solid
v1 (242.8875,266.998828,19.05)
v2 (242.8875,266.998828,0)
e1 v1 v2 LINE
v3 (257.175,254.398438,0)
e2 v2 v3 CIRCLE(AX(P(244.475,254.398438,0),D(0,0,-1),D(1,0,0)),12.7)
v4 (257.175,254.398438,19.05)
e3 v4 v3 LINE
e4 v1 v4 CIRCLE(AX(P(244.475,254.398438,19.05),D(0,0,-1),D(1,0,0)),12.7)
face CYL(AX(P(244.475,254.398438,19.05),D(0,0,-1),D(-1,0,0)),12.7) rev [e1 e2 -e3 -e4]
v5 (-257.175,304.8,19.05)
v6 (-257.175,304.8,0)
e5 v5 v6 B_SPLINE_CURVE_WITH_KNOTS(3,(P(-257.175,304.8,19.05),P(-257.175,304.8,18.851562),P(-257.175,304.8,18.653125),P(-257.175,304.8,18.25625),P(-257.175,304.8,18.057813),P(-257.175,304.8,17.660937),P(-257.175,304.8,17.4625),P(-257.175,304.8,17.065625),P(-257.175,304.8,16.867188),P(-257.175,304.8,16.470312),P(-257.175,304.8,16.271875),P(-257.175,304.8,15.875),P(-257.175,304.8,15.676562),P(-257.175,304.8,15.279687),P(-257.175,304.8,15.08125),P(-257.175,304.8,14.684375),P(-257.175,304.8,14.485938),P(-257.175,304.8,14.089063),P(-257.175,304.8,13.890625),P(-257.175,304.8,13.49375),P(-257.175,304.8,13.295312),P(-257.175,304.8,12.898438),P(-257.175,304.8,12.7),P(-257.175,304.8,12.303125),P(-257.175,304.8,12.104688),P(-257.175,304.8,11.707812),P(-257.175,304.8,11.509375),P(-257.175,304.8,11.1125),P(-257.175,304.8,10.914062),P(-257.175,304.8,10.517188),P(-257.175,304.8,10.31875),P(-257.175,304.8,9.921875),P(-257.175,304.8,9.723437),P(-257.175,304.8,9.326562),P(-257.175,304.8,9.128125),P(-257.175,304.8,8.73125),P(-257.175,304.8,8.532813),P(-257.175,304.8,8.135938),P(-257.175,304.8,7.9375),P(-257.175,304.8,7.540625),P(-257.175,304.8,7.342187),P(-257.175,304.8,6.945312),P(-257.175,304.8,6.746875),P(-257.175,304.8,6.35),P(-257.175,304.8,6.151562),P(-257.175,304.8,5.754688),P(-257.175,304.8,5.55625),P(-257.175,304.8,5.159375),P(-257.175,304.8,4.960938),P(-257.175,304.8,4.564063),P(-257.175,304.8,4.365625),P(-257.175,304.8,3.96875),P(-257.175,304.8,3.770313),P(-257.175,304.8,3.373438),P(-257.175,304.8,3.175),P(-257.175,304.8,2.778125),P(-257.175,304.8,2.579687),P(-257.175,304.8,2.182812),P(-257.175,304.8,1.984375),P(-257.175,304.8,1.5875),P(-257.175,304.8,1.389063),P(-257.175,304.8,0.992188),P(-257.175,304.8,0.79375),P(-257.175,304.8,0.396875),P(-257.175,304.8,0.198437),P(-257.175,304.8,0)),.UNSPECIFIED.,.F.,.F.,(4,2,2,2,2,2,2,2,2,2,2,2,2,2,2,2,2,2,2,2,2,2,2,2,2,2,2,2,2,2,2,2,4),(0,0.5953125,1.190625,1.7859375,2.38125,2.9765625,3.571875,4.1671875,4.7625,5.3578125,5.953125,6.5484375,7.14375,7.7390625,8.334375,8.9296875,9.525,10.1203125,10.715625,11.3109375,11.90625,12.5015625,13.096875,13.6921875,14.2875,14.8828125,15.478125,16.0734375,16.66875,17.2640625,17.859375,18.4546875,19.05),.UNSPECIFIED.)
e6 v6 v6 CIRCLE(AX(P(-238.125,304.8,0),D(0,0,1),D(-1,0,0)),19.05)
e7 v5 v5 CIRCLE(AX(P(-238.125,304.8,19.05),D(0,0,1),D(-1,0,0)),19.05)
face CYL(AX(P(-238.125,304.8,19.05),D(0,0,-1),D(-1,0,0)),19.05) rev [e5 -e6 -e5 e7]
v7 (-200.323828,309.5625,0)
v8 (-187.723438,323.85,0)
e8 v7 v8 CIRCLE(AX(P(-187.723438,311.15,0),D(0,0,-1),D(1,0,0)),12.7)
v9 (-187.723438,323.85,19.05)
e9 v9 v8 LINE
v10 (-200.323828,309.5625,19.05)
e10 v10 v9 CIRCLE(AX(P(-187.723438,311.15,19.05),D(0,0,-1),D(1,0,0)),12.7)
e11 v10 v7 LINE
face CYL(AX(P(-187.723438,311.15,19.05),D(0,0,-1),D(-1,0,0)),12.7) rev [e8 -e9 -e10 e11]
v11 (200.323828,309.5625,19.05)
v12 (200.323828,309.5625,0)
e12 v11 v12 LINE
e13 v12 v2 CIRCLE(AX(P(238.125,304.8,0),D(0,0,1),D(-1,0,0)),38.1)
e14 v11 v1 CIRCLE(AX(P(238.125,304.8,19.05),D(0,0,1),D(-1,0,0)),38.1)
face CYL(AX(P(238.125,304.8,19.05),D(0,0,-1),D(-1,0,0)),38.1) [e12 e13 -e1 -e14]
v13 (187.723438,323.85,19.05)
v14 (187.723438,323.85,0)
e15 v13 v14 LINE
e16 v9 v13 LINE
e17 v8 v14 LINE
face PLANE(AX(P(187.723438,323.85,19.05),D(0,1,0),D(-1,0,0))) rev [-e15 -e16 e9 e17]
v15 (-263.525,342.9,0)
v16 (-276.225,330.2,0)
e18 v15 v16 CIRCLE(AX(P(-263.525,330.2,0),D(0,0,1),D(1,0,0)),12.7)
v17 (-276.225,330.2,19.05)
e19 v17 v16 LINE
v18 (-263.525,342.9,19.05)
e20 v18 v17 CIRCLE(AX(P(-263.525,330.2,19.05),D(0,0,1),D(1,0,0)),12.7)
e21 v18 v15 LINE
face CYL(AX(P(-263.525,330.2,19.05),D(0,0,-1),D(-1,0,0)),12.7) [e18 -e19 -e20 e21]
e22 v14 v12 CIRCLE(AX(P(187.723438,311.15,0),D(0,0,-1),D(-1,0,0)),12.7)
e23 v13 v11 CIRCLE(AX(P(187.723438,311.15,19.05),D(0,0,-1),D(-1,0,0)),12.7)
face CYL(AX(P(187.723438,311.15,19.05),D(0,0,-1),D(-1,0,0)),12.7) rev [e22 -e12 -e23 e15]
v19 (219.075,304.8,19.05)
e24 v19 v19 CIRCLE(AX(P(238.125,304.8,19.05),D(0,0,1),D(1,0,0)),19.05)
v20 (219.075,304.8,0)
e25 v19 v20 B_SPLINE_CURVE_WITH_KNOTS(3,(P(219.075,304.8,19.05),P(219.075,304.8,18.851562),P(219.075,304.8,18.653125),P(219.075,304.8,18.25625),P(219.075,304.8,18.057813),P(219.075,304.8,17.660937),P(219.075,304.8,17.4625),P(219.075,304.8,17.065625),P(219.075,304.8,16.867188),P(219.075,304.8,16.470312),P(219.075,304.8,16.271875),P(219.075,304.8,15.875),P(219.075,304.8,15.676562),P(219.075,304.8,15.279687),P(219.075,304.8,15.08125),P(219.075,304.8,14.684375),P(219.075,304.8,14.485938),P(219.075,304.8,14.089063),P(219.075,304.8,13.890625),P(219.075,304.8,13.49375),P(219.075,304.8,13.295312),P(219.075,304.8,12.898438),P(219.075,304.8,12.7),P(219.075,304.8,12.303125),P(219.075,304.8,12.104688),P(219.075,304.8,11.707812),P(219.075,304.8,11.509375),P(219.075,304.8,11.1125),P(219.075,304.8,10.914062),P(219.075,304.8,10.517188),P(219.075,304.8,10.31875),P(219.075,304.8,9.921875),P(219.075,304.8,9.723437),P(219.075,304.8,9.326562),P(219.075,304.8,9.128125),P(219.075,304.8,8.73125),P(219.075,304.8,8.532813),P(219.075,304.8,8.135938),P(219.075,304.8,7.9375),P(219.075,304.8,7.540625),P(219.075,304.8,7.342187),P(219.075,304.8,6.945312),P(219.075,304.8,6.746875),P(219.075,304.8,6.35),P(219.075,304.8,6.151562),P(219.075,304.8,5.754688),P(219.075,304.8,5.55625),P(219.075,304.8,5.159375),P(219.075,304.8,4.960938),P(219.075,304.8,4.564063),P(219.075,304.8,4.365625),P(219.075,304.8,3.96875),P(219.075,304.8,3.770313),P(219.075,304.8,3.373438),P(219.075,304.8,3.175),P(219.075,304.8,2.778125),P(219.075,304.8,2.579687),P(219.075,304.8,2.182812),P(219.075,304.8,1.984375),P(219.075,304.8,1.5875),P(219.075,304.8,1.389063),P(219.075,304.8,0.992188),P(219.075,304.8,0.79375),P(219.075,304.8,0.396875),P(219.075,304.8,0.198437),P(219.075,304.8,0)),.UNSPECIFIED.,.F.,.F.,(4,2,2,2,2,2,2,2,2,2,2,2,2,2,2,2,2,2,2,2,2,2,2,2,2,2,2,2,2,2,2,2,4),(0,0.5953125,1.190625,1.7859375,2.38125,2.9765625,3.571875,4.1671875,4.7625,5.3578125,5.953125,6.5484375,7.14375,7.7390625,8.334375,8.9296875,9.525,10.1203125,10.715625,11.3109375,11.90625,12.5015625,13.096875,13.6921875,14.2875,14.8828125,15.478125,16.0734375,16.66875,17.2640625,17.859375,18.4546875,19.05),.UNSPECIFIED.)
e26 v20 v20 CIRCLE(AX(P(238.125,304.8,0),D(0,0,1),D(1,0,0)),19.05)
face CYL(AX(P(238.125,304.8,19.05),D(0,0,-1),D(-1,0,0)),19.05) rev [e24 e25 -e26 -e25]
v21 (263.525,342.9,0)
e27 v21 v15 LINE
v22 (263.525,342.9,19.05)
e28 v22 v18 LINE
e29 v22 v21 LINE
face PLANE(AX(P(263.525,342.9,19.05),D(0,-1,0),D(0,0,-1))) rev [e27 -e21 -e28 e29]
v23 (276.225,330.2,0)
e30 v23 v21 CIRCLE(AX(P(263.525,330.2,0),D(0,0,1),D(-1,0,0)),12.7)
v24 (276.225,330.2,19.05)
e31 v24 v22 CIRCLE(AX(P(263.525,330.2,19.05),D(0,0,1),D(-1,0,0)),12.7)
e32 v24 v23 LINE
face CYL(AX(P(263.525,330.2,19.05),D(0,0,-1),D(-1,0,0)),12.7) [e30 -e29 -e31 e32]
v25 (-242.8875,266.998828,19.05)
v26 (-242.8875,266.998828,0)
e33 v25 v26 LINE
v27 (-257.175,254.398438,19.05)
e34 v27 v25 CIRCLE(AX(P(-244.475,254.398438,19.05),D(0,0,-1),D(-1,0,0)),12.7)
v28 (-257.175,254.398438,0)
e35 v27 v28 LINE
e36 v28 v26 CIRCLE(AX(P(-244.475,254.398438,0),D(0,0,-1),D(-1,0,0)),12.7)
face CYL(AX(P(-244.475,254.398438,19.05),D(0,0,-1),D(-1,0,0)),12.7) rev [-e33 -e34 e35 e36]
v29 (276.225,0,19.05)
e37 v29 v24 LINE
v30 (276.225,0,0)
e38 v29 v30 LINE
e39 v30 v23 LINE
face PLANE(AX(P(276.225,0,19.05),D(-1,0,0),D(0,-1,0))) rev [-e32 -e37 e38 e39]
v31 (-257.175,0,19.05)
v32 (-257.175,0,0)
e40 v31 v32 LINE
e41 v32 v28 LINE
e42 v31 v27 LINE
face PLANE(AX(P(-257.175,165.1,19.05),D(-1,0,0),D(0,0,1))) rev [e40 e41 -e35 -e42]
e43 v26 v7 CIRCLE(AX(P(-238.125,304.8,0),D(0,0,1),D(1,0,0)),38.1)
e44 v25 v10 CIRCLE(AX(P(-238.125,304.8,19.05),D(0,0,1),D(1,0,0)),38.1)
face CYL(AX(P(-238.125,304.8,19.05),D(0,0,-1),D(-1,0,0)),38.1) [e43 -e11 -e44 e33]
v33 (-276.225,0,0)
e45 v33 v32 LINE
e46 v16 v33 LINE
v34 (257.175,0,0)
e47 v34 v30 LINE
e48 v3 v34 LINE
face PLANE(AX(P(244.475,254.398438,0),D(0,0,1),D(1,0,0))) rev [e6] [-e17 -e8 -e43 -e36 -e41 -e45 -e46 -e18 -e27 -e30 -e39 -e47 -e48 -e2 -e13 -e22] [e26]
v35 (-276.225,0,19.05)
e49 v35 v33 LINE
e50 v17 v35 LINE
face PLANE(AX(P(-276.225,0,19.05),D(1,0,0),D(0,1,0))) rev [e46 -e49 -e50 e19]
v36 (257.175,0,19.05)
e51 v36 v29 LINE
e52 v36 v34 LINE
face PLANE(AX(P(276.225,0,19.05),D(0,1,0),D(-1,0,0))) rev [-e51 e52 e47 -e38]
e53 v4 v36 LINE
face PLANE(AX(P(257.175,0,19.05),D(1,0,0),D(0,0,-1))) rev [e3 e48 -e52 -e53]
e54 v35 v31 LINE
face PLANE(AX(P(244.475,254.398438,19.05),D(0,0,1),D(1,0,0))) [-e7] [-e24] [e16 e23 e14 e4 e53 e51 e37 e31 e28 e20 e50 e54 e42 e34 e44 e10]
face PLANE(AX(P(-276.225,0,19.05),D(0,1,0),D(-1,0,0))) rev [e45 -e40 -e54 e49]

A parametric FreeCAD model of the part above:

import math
import FreeCAD as App
import Part
import Sketcher
Q = App.Units.Quantity

doc = App.newDocument("Part")
body = doc.addObject("PartDesign::Body", "Body")

# Sketch on XY plane
sketch1 = body.newObject("Sketcher::SketchObject", "Sketch")
sketch1.AttachmentSupport = (doc.getObject("XY_Plane"), [""])
sketch1.MapMode = "FlatFace"
sketch1.addGeometry(Part.LineSegment(App.Vector(276, 0, 0), App.Vector(276, 330, 0)), False)
sketch1.addGeometry(Part.ArcOfCircle(Part.Circle(App.Vector(264, 330, 0), App.Vector(0, 0, 1), 13), math.radians(0), math.radians(90)), False)
sketch1.addGeometry(Part.LineSegment(App.Vector(264, 343, 0), App.Vector(-264, 343, 0)), False)
sketch1.addGeometry(Part.ArcOfCircle(Part.Circle(App.Vector(-264, 330, 0), App.Vector(0, 0, 1), 13), math.radians(90), math.radians(180)), False)
sketch1.addGeometry(Part.LineSegment(App.Vector(-276, 330, 0), App.Vector(-276, 0, 0)), False)
sketch1.addGeometry(Part.LineSegment(App.Vector(-276, 0, 0), App.Vector(-257, 0, 0)), False)
sketch1.addGeometry(Part.LineSegment(App.Vector(-257, 0, 0), App.Vector(-257, 254, 0)), False)
sketch1.addGeometry(Part.ArcOfCircle(Part.Circle(App.Vector(-244, 254, 0), App.Vector(0, 0, 1), 13), math.radians(83), math.radians(180)), False)
sketch1.addGeometry(Part.ArcOfCircle(Part.Circle(App.Vector(-238, 305, 0), App.Vector(0, 0, 1), 38), math.radians(-97), math.radians(7)), False)
sketch1.addGeometry(Part.ArcOfCircle(Part.Circle(App.Vector(-188, 311, 0), App.Vector(0, 0, 1), 13), math.radians(90), math.radians(187)), False)
sketch1.addGeometry(Part.LineSegment(App.Vector(-188, 324, 0), App.Vector(188, 324, 0)), False)
sketch1.addGeometry(Part.ArcOfCircle(Part.Circle(App.Vector(188, 311, 0), App.Vector(0, 0, 1), 13), math.radians(-7), math.radians(90)), False)
sketch1.addGeometry(Part.ArcOfCircle(Part.Circle(App.Vector(238, 305, 0), App.Vector(0, 0, 1), 38), math.radians(173), math.radians(277)), False)
sketch1.addGeometry(Part.ArcOfCircle(Part.Circle(App.Vector(244, 254, 0), App.Vector(0, 0, 1), 13), math.radians(0), math.radians(97)), False)
sketch1.addGeometry(Part.LineSegment(App.Vector(257, 254, 0), App.Vector(257, 0, 0)), False)
sketch1.addGeometry(Part.LineSegment(App.Vector(257, 0, 0), App.Vector(276, 0, 0)), False)
sketch1.addGeometry(Part.Circle(App.Vector(-238, 305, 0), App.Vector(0, 0, 1), 19), False)
sketch1.addGeometry(Part.Circle(App.Vector(238, 305, 0), App.Vector(0, 0, 1), 19), False)
sketch1.addConstraint(Sketcher.Constraint("Tangent", 0, 2, 1, 1))
sketch1.addConstraint(Sketcher.Constraint("Tangent", 1, 2, 2, 1))
sketch1.addConstraint(Sketcher.Constraint("Tangent", 2, 2, 3, 1))
sketch1.addConstraint(Sketcher.Constraint("Tangent", 3, 2, 4, 1))
sketch1.addConstraint(Sketcher.Constraint("Coincident", 4, 2, 5, 1))
sketch1.addConstraint(Sketcher.Constraint("Coincident", 5, 2, 6, 1))
sketch1.addConstraint(Sketcher.Constraint("Tangent", 6, 2, 7, 2))
sketch1.addConstraint(Sketcher.Constraint("Tangent", 7, 1, 8, 1))
sketch1.addConstraint(Sketcher.Constraint("Tangent", 8, 2, 9, 2))
sketch1.addConstraint(Sketcher.Constraint("Tangent", 9, 1, 10, 1))
sketch1.addConstraint(Sketcher.Constraint("Tangent", 10, 2, 11, 2))
sketch1.addConstraint(Sketcher.Constraint("Tangent", 11, 1, 12, 1))
sketch1.addConstraint(Sketcher.Constraint("Tangent", 12, 2, 13, 2))
sketch1.addConstraint(Sketcher.Constraint("Tangent", 13, 1, 14, 1))
sketch1.addConstraint(Sketcher.Constraint("Coincident", 14, 2, 15, 1))
sketch1.addConstraint(Sketcher.Constraint("Coincident", 15, 2, 0, 1))
sketch1.addConstraint(Sketcher.Constraint("Vertical", 0))
sketch1.addConstraint(Sketcher.Constraint("Horizontal", 2))
sketch1.addConstraint(Sketcher.Constraint("Vertical", 4))
sketch1.addConstraint(Sketcher.Constraint("Horizontal", 5))
sketch1.addConstraint(Sketcher.Constraint("Vertical", 6))
sketch1.addConstraint(Sketcher.Constraint("Horizontal", 10))
sketch1.addConstraint(Sketcher.Constraint("Vertical", 14))
sketch1.addConstraint(Sketcher.Constraint("Horizontal", 15))
sketch1.addConstraint(Sketcher.Constraint("Coincident", 16, 3, 8, 3))
sketch1.addConstraint(Sketcher.Constraint("Coincident", 17, 3, 12, 3))
sketch1.addConstraint(Sketcher.Constraint("Equal", 1, 3))
sketch1.addConstraint(Sketcher.Constraint("Equal", 3, 7))
sketch1.addConstraint(Sketcher.Constraint("Equal", 7, 9))
sketch1.addConstraint(Sketcher.Constraint("Equal", 9, 11))
sketch1.addConstraint(Sketcher.Constraint("Equal", 8, 12))
sketch1.addConstraint(Sketcher.Constraint("Equal", 11, 13))
sketch1.addConstraint(Sketcher.Constraint("Equal", 16, 17))
sketch1.addConstraint(Sketcher.Constraint("Symmetric", 5, 2, 14, 2, -1, 1))
sketch1.addConstraint(Sketcher.Constraint("Symmetric", 8, 3, 12, 3, -2))
sketch1.addConstraint(Sketcher.Constraint("Symmetric", 4, 2, 15, 2, -2))
sketch1.addConstraint(Sketcher.Constraint("Diameter", 16, Q("1.5 in")))
sketch1.addConstraint(Sketcher.Constraint("Radius", 1, Q("0.5 in")))
sketch1.addConstraint(Sketcher.Constraint("Radius", 8, Q("1.5 in")))
sketch1.addConstraint(Sketcher.Constraint("DistanceY", 0, 1, 0, 2, Q("13 in")))
sketch1.addConstraint(Sketcher.Constraint("DistanceY", -1, 1, 8, 3, Q("12 in")))
sketch1.addConstraint(Sketcher.Constraint("DistanceX", 7, 3, 1, 3, Q("20 in")))
sketch1.addConstraint(Sketcher.Constraint("DistanceX", 3, 3, 8, 3, Q("1 in")))
sketch1.addConstraint(Sketcher.Constraint("DistanceX", 2, 2, 2, 1, Q("20.75 in")))
sketch1.addConstraint(Sketcher.Constraint("DistanceY", -1, 1, 9, 3, Q("12.25 in")))
pad1 = body.newObject("PartDesign::Pad", "Pad")
pad1.Profile = sketch1
pad1.Length = Q("0.75 in")

doc.recompute()
